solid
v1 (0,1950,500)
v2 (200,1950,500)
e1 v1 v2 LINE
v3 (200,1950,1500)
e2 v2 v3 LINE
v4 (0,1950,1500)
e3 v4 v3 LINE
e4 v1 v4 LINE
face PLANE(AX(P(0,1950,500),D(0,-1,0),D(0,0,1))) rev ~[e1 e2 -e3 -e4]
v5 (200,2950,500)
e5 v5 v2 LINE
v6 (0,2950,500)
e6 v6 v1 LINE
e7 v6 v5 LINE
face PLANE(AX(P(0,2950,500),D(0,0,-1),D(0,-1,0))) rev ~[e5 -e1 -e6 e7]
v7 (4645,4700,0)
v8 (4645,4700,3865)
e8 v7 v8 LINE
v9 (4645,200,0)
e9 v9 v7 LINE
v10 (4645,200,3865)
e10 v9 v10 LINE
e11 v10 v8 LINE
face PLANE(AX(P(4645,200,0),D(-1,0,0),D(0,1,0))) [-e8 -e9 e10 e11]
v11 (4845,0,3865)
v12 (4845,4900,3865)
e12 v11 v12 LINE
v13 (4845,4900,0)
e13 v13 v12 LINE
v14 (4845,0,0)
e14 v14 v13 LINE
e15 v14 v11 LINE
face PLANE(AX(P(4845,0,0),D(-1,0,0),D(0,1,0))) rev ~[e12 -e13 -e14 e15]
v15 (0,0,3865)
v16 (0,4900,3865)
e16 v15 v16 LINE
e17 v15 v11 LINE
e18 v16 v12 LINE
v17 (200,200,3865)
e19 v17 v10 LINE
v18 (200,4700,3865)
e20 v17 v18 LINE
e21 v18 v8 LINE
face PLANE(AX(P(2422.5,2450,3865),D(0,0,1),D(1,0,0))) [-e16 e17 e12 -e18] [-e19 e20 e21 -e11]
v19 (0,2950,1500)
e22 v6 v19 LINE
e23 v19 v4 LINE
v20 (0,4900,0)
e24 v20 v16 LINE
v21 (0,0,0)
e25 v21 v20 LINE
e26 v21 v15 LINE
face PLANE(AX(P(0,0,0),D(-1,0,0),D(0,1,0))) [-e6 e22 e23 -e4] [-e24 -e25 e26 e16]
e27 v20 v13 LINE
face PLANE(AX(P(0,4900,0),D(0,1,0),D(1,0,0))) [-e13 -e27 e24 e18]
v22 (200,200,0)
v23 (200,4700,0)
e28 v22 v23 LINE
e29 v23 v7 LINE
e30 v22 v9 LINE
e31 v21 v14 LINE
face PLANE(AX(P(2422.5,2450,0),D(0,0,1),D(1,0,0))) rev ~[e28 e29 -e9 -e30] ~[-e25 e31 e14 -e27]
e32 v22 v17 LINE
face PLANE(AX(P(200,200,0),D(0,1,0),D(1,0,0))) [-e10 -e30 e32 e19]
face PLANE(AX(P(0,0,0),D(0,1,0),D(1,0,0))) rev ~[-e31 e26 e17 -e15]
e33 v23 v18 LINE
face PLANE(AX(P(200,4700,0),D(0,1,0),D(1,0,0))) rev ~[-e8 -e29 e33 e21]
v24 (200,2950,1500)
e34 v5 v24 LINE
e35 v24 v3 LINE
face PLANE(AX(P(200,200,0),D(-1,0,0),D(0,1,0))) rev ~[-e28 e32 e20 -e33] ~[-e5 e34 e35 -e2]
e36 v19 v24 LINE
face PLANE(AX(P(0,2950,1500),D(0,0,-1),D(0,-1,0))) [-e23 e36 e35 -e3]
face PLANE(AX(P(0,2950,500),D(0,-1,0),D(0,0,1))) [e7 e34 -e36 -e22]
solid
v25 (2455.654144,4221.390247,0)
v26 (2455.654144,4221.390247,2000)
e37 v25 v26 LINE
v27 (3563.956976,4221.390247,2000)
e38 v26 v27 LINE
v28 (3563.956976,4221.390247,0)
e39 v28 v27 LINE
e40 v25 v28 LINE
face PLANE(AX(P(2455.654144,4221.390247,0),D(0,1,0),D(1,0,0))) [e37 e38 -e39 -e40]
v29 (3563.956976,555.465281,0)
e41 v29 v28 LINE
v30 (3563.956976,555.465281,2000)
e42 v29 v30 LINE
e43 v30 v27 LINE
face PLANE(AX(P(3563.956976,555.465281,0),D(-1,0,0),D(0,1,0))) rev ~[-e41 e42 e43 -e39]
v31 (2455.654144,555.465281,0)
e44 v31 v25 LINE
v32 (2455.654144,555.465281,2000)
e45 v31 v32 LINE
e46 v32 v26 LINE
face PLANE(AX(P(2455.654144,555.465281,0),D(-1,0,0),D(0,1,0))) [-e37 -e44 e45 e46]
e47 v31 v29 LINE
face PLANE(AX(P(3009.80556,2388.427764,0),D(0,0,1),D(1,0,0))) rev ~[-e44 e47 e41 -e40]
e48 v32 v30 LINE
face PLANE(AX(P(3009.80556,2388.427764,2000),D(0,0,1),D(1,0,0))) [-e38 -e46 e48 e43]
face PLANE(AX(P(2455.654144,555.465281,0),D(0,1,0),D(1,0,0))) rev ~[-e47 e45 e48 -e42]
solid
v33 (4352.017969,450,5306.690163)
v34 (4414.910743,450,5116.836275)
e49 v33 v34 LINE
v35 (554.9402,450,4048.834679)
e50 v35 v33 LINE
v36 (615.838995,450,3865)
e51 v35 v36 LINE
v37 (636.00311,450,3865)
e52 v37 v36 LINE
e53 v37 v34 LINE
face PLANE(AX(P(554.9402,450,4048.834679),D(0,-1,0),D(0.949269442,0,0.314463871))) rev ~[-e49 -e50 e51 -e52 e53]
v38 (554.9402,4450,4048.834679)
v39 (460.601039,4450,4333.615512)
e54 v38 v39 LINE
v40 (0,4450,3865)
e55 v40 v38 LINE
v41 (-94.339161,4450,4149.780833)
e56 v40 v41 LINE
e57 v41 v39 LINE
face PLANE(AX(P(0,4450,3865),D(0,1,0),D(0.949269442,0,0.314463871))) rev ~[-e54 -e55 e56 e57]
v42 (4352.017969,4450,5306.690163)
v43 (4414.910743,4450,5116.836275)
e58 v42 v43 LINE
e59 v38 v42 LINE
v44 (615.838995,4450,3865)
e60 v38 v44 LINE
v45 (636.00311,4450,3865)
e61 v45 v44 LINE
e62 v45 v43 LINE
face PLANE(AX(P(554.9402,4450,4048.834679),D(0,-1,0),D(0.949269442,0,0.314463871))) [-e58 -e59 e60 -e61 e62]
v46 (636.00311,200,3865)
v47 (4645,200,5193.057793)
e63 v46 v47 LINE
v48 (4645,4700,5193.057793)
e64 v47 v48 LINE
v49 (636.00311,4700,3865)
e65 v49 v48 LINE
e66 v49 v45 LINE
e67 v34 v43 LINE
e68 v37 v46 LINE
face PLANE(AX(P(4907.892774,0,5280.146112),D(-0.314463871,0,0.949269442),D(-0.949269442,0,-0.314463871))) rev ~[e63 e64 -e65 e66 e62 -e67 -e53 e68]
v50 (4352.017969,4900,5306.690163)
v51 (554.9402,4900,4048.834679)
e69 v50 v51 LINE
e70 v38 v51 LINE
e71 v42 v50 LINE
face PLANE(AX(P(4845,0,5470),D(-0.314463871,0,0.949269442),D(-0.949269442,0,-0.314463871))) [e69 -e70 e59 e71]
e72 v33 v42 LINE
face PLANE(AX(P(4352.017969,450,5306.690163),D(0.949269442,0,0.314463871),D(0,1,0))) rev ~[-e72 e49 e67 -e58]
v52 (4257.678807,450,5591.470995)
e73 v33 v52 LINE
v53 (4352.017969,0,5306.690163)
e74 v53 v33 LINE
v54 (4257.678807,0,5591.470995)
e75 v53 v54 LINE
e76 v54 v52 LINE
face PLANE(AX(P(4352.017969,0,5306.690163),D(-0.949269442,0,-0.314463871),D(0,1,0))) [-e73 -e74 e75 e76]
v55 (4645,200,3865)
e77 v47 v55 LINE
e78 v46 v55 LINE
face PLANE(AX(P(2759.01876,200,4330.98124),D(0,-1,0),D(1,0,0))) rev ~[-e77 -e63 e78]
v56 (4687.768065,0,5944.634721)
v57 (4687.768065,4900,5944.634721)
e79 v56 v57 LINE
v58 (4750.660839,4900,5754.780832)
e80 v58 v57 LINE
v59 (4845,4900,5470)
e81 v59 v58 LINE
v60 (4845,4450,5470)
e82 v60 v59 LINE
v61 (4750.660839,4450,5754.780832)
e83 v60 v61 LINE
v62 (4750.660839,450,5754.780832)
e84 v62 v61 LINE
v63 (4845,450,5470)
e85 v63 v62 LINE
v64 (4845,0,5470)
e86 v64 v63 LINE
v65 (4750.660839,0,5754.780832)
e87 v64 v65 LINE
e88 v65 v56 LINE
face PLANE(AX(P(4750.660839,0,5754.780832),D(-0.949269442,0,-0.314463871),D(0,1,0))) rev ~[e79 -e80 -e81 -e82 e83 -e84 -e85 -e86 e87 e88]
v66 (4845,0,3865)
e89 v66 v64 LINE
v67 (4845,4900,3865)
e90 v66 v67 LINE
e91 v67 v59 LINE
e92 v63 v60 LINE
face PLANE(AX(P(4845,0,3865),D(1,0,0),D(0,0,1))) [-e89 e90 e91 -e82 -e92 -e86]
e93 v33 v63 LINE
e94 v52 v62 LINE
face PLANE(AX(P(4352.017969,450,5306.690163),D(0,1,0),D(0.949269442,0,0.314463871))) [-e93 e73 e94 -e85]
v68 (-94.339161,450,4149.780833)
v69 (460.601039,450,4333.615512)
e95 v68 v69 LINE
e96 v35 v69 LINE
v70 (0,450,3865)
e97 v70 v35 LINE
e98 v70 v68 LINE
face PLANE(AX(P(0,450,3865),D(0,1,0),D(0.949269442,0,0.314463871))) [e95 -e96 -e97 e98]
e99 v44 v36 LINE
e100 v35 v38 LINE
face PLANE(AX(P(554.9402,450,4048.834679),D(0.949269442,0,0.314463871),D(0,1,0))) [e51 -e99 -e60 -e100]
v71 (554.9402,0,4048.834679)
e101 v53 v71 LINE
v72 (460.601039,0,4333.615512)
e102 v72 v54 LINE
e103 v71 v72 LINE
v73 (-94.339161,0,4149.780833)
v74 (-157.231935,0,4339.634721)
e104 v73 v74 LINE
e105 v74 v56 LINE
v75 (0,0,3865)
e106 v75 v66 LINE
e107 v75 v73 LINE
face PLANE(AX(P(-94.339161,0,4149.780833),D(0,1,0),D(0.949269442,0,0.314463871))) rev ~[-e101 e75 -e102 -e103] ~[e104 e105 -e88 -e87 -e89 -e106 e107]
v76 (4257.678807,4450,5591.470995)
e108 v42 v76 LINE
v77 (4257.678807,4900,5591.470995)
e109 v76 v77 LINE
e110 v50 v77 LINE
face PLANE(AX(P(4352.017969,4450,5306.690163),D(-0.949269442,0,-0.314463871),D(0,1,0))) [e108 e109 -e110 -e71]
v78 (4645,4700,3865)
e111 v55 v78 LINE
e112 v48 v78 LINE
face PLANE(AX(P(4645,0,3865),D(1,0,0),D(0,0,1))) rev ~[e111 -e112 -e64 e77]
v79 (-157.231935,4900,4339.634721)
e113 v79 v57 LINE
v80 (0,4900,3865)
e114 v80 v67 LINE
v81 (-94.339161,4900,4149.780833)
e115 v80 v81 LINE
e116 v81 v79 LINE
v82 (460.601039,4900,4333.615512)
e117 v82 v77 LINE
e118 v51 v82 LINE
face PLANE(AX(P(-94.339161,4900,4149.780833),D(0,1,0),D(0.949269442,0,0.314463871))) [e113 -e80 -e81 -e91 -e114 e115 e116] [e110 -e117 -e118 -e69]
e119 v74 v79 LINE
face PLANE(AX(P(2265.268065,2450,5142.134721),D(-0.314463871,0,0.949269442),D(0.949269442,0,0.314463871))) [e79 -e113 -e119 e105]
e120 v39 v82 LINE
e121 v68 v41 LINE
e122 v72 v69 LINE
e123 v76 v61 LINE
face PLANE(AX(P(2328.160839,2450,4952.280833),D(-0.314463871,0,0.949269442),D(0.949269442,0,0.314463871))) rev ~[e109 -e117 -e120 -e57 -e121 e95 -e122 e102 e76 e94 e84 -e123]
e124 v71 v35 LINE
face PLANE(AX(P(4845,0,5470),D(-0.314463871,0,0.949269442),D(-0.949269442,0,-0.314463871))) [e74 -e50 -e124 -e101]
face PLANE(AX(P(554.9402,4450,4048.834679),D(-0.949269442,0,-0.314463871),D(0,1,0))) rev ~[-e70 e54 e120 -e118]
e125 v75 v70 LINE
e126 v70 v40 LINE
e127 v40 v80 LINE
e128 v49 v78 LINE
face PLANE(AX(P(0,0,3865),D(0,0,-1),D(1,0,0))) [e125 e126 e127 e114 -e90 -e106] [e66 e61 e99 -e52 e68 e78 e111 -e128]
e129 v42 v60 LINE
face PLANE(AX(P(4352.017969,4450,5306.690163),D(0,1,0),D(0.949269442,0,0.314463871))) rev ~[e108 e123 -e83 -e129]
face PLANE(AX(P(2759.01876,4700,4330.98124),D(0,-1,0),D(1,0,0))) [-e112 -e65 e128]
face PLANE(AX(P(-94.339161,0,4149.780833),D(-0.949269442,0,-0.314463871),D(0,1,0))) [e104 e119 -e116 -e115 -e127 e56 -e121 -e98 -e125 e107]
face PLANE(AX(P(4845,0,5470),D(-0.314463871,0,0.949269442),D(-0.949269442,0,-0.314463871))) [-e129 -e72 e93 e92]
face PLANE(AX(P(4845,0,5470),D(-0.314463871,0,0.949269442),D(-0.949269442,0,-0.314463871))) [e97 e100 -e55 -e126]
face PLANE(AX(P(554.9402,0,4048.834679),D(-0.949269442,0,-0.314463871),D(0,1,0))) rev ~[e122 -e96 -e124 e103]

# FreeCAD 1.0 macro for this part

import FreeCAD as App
import Part
import Sketcher
from FreeCAD import Vector
Q = App.Units.Quantity


def faces_at(feature, points):
    """Names of the faces that lie closest to the given points."""
    faces = feature.Shape.Faces
    near = lambda p: min(range(len(faces)), key=lambda i: faces[i].distToShape(Part.Vertex(*p))[0])
    return sorted({f"Face{near(p) + 1}" for p in points})


def add_polygon(sketch, points):
    """Adds a closed chain of lines whose ends are joined by coincident constraints."""
    first, n = sketch.GeometryCount, len(points)
    for a, b in zip(points, points[1:] + points[:1]):
        sketch.addGeometry(Part.LineSegment(App.Vector(*a, 0), App.Vector(*b, 0)), False)
    for i in range(n):
        sketch.addConstraint(Sketcher.Constraint("Coincident", first + i, 2, first + (i + 1) % n, 1))

doc = App.newDocument("Part")
body = doc.addObject("PartDesign::Body", "Body")

# Sketch on XY plane
sketch1 = body.newObject("Sketcher::SketchObject", "Sketch")
sketch1.AttachmentSupport = (doc.getObject("XY_Plane"), [""])
sketch1.MapMode = "FlatFace"
add_polygon(sketch1, [(0, 4900), (0, 0), (4845, 0), (4845, 4900)])  # lines 0-3
add_polygon(sketch1, [(4645, 200), (200, 200), (200, 4700), (4645, 4700)])  # lines 4-7
sketch1.addConstraint([
    Sketcher.Constraint("Vertical", 0),
    Sketcher.Constraint("Horizontal", 1),
    Sketcher.Constraint("Vertical", 2),
    Sketcher.Constraint("Horizontal", 3),
    Sketcher.Constraint("Horizontal", 4),
    Sketcher.Constraint("Vertical", 5),
    Sketcher.Constraint("Horizontal", 6),
    Sketcher.Constraint("Vertical", 7),
    Sketcher.Constraint("Coincident", 0, 2, -1, 1),
    Sketcher.Constraint("DistanceX", 1, 1, 1, 2, Q("4845 mm")),
    Sketcher.Constraint("DistanceX", 4, 2, 4, 1, Q("4445 mm")),
    Sketcher.Constraint("DistanceY", 0, 2, 0, 1, Q("4900 mm")),
    Sketcher.Constraint("DistanceY", 5, 1, 5, 2, Q("4500 mm")),
    Sketcher.Constraint("DistanceX", -1, 1, 4, 2, Q("200 mm")),
    Sketcher.Constraint("DistanceY", -1, 1, 4, 2, Q("200 mm")),
])
pad1 = body.newObject("PartDesign::Pad", "Pad")
pad1.Profile = sketch1
pad1.Length = 3865

# Sketch on YZ plane
sketch2 = body.newObject("Sketcher::SketchObject", "Sketch001")
sketch2.AttachmentSupport = (doc.getObject("YZ_Plane"), [""])
sketch2.MapMode = "FlatFace"
add_polygon(sketch2, [(2950, 1500), (2950, 500), (1950, 500), (1950, 1500)])  # lines 0-3
sketch2.addConstraint([
    Sketcher.Constraint("Vertical", 0),
    Sketcher.Constraint("Horizontal", 1),
    Sketcher.Constraint("Vertical", 2),
    Sketcher.Constraint("Horizontal", 3),
    Sketcher.Constraint("Equal", 3, 0),
    Sketcher.Constraint("DistanceX", 1, 2, 1, 1, Q("1000 mm")),
    Sketcher.Constraint("DistanceX", -1, 1, 0, 2, Q("2950 mm")),
    Sketcher.Constraint("DistanceY", -1, 1, 0, 2, Q("500 mm")),
])
pocket1 = body.newObject("PartDesign::Pocket", "Pocket")
pocket1.Profile = sketch2
pocket1.Length = 250
pocket1.Reversed = True
body2 = doc.addObject("PartDesign::Body", "Body001")

# Sketch on XZ plane
sketch3 = body2.newObject("Sketcher::SketchObject", "Sketch002")
sketch3.AttachmentSupport = (doc.getObject("XZ_Plane001"), [""])
sketch3.MapMode = "FlatFace"
add_polygon(sketch3, [(4845, 5470), (0, 3865), (4845, 3865)])  # lines 0-2
sketch3.addConstraint([
    Sketcher.Constraint("Horizontal", 1),
    Sketcher.Constraint("Vertical", 2),
    Sketcher.Constraint("PointOnObject", 0, 2, -2),
    Sketcher.Constraint("DistanceX", 1, 1, 1, 2, Q("4845 mm")),
    Sketcher.Constraint("DistanceY", 2, 1, 2, 2, Q("1605 mm")),
    Sketcher.Constraint("DistanceY", -1, 1, 0, 2, Q("3865 mm")),
])
pad2 = body2.newObject("PartDesign::Pad", "Pad001")
pad2.Profile = sketch3
pad2.Length = 4900
pad2.Reversed = True
doc.recompute()

thickness = body2.newObject("PartDesign::Thickness", "Thickness")
thickness.Base = (pad2, faces_at(pad2, [(2422.5, 2450, 3865)]))
thickness.Value = 200
thickness.Reversed = True
thickness.Join = "Arc"

# Sketch on an angled plane
sketch4 = body2.newObject("Sketcher::SketchObject", "Sketch003")
sketch4.Placement = App.Placement(Vector(-1153.744796, 0, 3482.799712), App.Rotation(Vector(0.949269442, 0, 0.314463871), Vector(0, 1, 0), Vector(-0.314463871, 0, 0.949269442), "ZXY"))
add_polygon(sketch4, [(1800, 4450), (1800, 450), (5800, 450), (5800, 4450)])  # lines 0-3
sketch4.addConstraint([
    Sketcher.Constraint("Vertical", 0),
    Sketcher.Constraint("Horizontal", 1),
    Sketcher.Constraint("Vertical", 2),
    Sketcher.Constraint("Horizontal", 3),
    Sketcher.Constraint("Equal", 3, 0),
    Sketcher.Constraint("DistanceX", 1, 1, 1, 2, Q("3999.999999 mm")),
    Sketcher.Constraint("DistanceX", -1, 1, 0, 2, Q("1799.999999 mm")),
    Sketcher.Constraint("DistanceY", -1, 1, 0, 2, Q("450 mm")),
])
pocket2 = body2.newObject("PartDesign::Pocket", "Pocket001")
pocket2.Profile = sketch4
pocket2.Length = 800

# Sketch on an angled plane
sketch5 = body2.newObject("Sketcher::SketchObject", "Sketch004")
sketch5.Placement = App.Placement(Vector(-1153.744796, 0, 3482.799712), App.Rotation(Vector(0.949269442, 0, 0.314463871), Vector(0, 1, 0), Vector(-0.314463871, 0, 0.949269442), "ZXY"))
add_polygon(sketch5, [(1215, 4900), (1215, 4450), (1800, 4450), (1800, 4900)])  # lines 0-3
add_polygon(sketch5, [(1215, 450), (1215, 0), (1800, 0), (1800, 450)])  # lines 4-7
add_polygon(sketch5, [(5800, 450), (5800, 0), (6319, 0), (6319, 450)])  # lines 8-11
add_polygon(sketch5, [(5800, 4900), (5800, 4450), (6319, 4450), (6319, 4900)])  # lines 12-15
sketch5.addConstraint([
    Sketcher.Constraint("Vertical", 0),
    Sketcher.Constraint("Horizontal", 1),
    Sketcher.Constraint("Vertical", 2),
    Sketcher.Constraint("Horizontal", 3),
    Sketcher.Constraint("Vertical", 4),
    Sketcher.Constraint("Horizontal", 5),
    Sketcher.Constraint("Vertical", 6),
    Sketcher.Constraint("Horizontal", 7),
    Sketcher.Constraint("Vertical", 8),
    Sketcher.Constraint("Horizontal", 9),
    Sketcher.Constraint("Vertical", 10),
    Sketcher.Constraint("Horizontal", 11),
    Sketcher.Constraint("Vertical", 12),
    Sketcher.Constraint("Horizontal", 13),
    Sketcher.Constraint("Vertical", 14),
    Sketcher.Constraint("Horizontal", 15),
    Sketcher.Constraint("PointOnObject", 4, 2, -1),
    Sketcher.Constraint("PointOnObject", 8, 2, -1),
    Sketcher.Constraint("Horizontal", 7, 2, 10, 2),
    Sketcher.Constraint("Horizontal", 1, 2, 12, 2),
    Sketcher.Constraint("Horizontal", 3, 2, 14, 2),
    Sketcher.Constraint("Vertical", 3, 2, 4, 2),
    Sketcher.Constraint("Vertical", 2, 2, 5, 2),
    Sketcher.Constraint("Vertical", 11, 2, 12, 2),
    Sketcher.Constraint("Vertical", 10, 2, 13, 2),
    Sketcher.Constraint("Equal", 2, 4),
    Sketcher.Constraint("DistanceY", 0, 2, 0, 1, Q("450 mm")),
    Sketcher.Constraint("DistanceX", -1, 1, 1, 2, Q("1799.999999 mm")),
    Sketcher.Constraint("DistanceX", -1, 1, 8, 2, Q("5799.999998 mm")),
    Sketcher.Constraint("DistanceX", 1, 1, 1, 2, Q("584.597139 mm")),
    Sketcher.Constraint("DistanceX", 9, 1, 9, 2, Q("519.327821 mm")),
    Sketcher.Constraint("DistanceY", -1, 1, 0, 2, Q("4449.999997 mm")),
])
pad3 = body2.newObject("PartDesign::Pad", "Pad002")
pad3.Profile = sketch5
pad3.Length = 300

# Sketch on an angled plane
sketch6 = body2.newObject("Sketcher::SketchObject", "Sketch005")
sketch6.Placement = App.Placement(Vector(-1248.083957, 0, 3767.580544), App.Rotation(Vector(0.949269442, 0, 0.314463871), Vector(0, 1, 0), Vector(-0.314463871, 0, 0.949269442), "ZXY"))
add_polygon(sketch6, [(1215, 4900), (1215, 0), (6319, 0), (6319, 4900)])  # lines 0-3
sketch6.addConstraint([
    Sketcher.Constraint("Vertical", 0),
    Sketcher.Constraint("Horizontal", 1),
    Sketcher.Constraint("Vertical", 2),
    Sketcher.Constraint("Horizontal", 3),
    Sketcher.Constraint("PointOnObject", 0, 2, -1),
    Sketcher.Constraint("DistanceX", 1, 1, 1, 2, Q("5103.924959 mm")),
    Sketcher.Constraint("DistanceY", 0, 2, 0, 1, Q("4899.999997 mm")),
    Sketcher.Constraint("DistanceX", -1, 1, 0, 2, Q("1215.402861 mm")),
])
pad4 = body2.newObject("PartDesign::Pad", "Pad003")
pad4.Profile = sketch6
pad4.Length = 200
body3 = doc.addObject("PartDesign::Body", "Body002")

# Sketch on XY plane
sketch7 = body3.newObject("Sketcher::SketchObject", "Sketch006")
sketch7.AttachmentSupport = (doc.getObject("XY_Plane002"), [""])
sketch7.MapMode = "FlatFace"
add_polygon(sketch7, [(2456, 4221), (2456, 555), (3564, 555), (3564, 4221)])  # lines 0-3
sketch7.addConstraint([
    Sketcher.Constraint("Vertical", 0),
    Sketcher.Constraint("Horizontal", 1),
    Sketcher.Constraint("Vertical", 2),
    Sketcher.Constraint("Horizontal", 3),
    Sketcher.Constraint("DistanceX", 1, 1, 1, 2, Q("1108.302832 mm")),
    Sketcher.Constraint("DistanceY", 0, 2, 0, 1, Q("3665.924966 mm")),
    Sketcher.Constraint("DistanceY", -1, 1, 0, 2, Q("555.465281 mm")),
    Sketcher.Constraint("DistanceX", -1, 1, 0, 2, Q("2455.654144 mm")),
])
pad5 = body3.newObject("PartDesign::Pad", "Pad004")
pad5.Profile = sketch7
pad5.Length = 2000

doc.recompute()
